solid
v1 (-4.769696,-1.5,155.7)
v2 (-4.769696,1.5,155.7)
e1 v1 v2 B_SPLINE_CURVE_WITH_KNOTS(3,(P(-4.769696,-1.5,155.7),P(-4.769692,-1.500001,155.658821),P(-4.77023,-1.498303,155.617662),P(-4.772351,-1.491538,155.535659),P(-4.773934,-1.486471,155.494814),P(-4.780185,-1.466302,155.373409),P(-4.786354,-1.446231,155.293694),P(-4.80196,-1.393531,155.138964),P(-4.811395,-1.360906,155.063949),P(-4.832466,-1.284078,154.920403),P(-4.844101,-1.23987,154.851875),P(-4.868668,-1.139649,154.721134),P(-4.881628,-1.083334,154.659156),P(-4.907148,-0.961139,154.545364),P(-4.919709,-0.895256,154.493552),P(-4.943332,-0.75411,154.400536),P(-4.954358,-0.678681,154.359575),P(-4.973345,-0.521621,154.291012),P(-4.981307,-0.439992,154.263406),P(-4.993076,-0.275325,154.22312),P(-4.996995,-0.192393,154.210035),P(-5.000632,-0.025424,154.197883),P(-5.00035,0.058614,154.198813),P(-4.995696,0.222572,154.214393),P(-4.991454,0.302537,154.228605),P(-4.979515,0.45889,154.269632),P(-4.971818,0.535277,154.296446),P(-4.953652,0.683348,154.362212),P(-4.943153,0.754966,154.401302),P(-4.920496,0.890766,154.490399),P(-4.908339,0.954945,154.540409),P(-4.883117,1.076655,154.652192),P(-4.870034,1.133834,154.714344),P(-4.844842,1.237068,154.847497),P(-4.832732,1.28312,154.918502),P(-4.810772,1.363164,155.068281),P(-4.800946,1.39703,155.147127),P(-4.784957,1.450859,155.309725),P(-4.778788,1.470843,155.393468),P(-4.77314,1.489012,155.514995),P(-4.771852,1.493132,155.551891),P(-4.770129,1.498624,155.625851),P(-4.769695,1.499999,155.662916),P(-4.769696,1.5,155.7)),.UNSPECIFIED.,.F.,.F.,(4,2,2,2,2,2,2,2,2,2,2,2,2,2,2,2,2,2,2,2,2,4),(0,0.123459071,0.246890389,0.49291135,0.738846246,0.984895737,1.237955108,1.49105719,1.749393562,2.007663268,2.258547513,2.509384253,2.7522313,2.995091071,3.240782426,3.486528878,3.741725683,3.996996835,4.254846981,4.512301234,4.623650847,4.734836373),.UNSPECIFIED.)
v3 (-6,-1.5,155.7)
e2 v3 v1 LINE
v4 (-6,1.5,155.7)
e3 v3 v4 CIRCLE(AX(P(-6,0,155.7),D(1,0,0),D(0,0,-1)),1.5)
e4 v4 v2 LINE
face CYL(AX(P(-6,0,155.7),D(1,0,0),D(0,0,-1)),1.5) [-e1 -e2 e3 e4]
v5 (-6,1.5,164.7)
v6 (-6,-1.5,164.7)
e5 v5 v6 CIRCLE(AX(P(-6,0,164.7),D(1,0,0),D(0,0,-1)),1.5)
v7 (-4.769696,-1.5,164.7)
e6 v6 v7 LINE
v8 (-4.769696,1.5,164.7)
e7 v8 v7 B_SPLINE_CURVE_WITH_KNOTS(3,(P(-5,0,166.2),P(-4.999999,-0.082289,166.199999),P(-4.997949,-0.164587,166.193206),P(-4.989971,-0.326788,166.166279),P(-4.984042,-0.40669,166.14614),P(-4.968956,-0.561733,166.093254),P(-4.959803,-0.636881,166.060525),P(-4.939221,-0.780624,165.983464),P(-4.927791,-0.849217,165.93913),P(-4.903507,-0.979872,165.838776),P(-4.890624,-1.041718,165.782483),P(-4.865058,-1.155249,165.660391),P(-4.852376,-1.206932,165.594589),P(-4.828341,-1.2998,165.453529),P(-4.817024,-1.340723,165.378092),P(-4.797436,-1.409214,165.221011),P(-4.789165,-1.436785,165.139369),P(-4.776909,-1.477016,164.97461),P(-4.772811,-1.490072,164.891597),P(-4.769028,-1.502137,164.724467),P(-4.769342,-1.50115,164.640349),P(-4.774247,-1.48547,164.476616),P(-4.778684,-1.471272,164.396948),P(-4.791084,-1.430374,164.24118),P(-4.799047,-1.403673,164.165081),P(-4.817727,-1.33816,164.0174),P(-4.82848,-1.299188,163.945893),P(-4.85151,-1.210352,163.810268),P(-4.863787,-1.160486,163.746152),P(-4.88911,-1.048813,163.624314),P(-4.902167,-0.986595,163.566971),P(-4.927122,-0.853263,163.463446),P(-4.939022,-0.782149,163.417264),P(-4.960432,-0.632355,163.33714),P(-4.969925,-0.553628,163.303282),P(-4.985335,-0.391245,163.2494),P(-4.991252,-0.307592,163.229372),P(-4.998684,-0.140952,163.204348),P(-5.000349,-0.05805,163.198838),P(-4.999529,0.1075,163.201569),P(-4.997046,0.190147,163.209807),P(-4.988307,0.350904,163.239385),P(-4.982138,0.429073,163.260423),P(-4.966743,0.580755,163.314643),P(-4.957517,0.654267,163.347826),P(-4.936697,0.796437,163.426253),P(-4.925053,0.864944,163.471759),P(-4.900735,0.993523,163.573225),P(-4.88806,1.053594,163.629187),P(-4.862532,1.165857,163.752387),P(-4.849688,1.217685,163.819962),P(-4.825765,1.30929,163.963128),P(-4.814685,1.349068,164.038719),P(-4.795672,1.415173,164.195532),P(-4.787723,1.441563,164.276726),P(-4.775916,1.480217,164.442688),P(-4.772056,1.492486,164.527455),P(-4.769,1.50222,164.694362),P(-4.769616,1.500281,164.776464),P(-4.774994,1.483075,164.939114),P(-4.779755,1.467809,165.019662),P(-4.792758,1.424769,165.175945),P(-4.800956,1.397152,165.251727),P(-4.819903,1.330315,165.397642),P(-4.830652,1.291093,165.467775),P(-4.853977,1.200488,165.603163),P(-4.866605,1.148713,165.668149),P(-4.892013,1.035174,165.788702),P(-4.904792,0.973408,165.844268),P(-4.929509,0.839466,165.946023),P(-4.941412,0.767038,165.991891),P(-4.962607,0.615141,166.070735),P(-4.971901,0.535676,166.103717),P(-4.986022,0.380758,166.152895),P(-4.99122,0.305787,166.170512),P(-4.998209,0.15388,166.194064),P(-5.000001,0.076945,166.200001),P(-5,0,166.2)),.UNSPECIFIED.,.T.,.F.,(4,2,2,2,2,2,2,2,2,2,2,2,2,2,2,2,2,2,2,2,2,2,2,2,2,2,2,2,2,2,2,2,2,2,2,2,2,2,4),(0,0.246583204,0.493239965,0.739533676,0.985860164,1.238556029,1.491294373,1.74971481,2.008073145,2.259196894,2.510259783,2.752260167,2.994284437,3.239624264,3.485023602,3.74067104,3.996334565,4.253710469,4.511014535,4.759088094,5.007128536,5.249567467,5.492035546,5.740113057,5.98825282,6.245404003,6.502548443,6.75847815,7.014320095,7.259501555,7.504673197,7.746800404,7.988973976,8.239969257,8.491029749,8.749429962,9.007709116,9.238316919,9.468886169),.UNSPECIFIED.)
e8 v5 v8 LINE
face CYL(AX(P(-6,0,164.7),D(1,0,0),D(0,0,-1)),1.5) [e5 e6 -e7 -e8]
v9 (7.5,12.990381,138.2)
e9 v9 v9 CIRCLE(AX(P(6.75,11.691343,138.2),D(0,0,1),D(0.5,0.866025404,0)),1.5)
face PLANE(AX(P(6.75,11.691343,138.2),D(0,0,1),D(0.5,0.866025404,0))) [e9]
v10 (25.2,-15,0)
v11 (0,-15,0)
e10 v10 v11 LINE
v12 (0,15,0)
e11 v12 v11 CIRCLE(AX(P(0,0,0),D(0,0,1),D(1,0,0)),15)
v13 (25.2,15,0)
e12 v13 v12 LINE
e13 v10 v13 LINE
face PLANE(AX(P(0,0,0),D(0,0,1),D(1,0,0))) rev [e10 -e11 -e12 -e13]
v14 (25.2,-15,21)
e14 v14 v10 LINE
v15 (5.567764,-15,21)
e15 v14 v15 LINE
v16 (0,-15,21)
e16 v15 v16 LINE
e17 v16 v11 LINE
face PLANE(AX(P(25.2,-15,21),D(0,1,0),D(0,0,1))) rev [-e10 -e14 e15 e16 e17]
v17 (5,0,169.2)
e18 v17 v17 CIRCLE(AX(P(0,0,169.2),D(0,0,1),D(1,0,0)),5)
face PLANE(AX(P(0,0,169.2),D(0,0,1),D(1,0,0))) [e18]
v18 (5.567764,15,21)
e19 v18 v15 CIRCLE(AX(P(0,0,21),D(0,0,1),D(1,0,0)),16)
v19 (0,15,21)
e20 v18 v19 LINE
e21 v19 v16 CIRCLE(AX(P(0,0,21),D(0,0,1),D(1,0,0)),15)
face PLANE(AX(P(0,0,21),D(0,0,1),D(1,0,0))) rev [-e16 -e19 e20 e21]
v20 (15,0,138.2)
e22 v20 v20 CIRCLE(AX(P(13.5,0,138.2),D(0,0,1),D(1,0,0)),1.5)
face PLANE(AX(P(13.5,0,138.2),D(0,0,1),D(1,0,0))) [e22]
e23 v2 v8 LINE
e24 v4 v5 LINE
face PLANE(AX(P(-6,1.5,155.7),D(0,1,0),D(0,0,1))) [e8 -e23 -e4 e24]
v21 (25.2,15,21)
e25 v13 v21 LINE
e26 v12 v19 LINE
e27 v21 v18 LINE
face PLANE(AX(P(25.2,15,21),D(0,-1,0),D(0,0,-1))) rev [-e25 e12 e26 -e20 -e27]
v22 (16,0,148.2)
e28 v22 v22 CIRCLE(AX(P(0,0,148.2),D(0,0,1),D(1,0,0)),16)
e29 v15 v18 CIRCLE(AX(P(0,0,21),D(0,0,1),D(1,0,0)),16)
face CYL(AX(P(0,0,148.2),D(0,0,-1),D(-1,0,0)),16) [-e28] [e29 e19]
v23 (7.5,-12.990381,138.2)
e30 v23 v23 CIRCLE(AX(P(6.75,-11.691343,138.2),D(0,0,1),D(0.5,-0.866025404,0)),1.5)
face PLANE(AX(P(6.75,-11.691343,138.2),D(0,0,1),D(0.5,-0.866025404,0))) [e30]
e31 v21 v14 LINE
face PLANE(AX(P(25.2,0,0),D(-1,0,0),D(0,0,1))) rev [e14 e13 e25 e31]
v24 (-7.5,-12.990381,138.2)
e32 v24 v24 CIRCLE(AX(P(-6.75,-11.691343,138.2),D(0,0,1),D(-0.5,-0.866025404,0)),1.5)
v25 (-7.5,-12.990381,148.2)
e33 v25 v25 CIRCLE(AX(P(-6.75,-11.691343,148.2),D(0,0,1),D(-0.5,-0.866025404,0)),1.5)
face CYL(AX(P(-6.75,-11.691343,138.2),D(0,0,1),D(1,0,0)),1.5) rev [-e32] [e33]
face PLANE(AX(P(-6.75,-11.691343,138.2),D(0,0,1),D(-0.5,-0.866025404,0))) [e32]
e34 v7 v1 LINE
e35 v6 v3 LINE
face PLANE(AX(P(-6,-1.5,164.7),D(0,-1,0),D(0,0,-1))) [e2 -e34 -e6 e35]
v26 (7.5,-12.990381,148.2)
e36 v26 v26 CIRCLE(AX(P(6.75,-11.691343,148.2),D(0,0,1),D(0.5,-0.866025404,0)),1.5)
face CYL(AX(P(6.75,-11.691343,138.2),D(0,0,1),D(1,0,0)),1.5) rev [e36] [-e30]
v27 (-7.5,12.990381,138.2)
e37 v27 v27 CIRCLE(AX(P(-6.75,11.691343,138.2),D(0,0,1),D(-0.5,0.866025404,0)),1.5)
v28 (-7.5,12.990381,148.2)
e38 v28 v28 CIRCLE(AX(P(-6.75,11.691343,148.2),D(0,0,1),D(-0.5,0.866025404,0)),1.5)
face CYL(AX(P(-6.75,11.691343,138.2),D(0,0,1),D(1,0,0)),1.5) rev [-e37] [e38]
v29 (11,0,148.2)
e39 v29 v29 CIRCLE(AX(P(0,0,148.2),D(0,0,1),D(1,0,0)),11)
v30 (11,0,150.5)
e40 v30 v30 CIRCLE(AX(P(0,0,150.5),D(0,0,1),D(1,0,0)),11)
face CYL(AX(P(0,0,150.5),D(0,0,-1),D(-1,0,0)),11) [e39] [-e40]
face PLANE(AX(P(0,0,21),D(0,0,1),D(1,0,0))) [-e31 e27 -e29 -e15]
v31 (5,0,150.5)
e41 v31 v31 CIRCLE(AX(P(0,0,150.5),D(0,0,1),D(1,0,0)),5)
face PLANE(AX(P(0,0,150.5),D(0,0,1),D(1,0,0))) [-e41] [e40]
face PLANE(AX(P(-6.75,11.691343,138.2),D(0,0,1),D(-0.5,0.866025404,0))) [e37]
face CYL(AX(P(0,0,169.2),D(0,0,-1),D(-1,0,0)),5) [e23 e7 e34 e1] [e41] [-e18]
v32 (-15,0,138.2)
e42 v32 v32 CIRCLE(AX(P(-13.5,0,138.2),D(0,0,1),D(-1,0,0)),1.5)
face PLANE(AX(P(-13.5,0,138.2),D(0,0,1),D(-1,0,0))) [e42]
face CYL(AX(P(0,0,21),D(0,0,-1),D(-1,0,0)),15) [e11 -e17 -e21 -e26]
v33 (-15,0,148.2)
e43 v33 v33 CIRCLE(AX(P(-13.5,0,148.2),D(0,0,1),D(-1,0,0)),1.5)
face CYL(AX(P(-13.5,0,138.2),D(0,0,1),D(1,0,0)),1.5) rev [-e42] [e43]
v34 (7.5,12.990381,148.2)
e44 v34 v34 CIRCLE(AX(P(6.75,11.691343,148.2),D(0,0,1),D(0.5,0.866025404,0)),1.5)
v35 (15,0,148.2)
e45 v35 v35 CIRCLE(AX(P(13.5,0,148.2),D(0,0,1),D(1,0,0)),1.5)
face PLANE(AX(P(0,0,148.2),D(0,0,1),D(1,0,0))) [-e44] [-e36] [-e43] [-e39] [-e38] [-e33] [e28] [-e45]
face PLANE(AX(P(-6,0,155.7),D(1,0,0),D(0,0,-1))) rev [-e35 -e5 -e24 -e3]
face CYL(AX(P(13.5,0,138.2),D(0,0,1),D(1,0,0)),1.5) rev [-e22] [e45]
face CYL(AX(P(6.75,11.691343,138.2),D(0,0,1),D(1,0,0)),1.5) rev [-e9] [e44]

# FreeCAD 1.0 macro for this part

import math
import FreeCAD as App
import Part
import Sketcher

doc = App.newDocument("Part")
body = doc.addObject("PartDesign::Body", "Body")

# Sketch on XY plane
sketch1 = body.newObject("Sketcher::SketchObject", "Sketch")
sketch1.AttachmentSupport = (doc.getObject("XY_Plane"), [""])
sketch1.MapMode = "FlatFace"
sketch1.addGeometry(Part.Circle(App.Vector(0, 0, 0), App.Vector(0, 0, 1), 15), False)
sketch1.addConstraint(Sketcher.Constraint("Coincident", 0, 3, -1, 1))
sketch1.addConstraint(Sketcher.Constraint("Diameter", 0, 30.0))
pad1 = body.newObject("PartDesign::Pad", "Pad")
pad1.Profile = sketch1
pad1.Length = 21

# Sketch on YZ plane
sketch2 = body.newObject("Sketcher::SketchObject", "Sketch001")
sketch2.AttachmentSupport = (doc.getObject("YZ_Plane"), [""])
sketch2.MapMode = "FlatFace"
sketch2.addGeometry(Part.LineSegment(App.Vector(15, 21, 0), App.Vector(-15, 21, 0)), False)
sketch2.addGeometry(Part.LineSegment(App.Vector(-15, 21, 0), App.Vector(-15, 0, 0)), False)
sketch2.addGeometry(Part.LineSegment(App.Vector(-15, 0, 0), App.Vector(15, 0, 0)), False)
sketch2.addGeometry(Part.LineSegment(App.Vector(15, 0, 0), App.Vector(15, 21, 0)), False)
sketch2.addConstraint(Sketcher.Constraint("Coincident", 0, 2, 1, 1))
sketch2.addConstraint(Sketcher.Constraint("Coincident", 1, 2, 2, 1))
sketch2.addConstraint(Sketcher.Constraint("Coincident", 2, 2, 3, 1))
sketch2.addConstraint(Sketcher.Constraint("Coincident", 3, 2, 0, 1))
sketch2.addConstraint(Sketcher.Constraint("Horizontal", 0))
sketch2.addConstraint(Sketcher.Constraint("Vertical", 1))
sketch2.addConstraint(Sketcher.Constraint("Horizontal", 2))
sketch2.addConstraint(Sketcher.Constraint("Vertical", 3))
sketch2.addConstraint(Sketcher.Constraint("Symmetric", 1, 2, 2, 2, -1, 1))
sketch2.addConstraint(Sketcher.Constraint("DistanceX", 0, 2, 0, 1, 30.0))
sketch2.addConstraint(Sketcher.Constraint("DistanceY", 1, 2, 1, 1, 21.0))
pad2 = body.newObject("PartDesign::Pad", "Pad001")
pad2.Profile = sketch2
pad2.Length = 25.2

# Sketch on XY plane
sketch3 = body.newObject("Sketcher::SketchObject", "Sketch002")
sketch3.AttachmentSupport = (doc.getObject("XY_Plane"), [""])
sketch3.MapMode = "FlatFace"
sketch3.AttachmentOffset = App.Placement(App.Vector(0, 0, 21), App.Rotation())
sketch3.addGeometry(Part.Circle(App.Vector(0, 0, 0), App.Vector(0, 0, 1), 16), False)
sketch3.addConstraint(Sketcher.Constraint("Coincident", 0, 3, -1, 1))
sketch3.addConstraint(Sketcher.Constraint("Diameter", 0, 32.0))
pad3 = body.newObject("PartDesign::Pad", "Pad002")
pad3.Profile = sketch3
pad3.Length = 127.2

# Sketch on XY plane
sketch4 = body.newObject("Sketcher::SketchObject", "Sketch003")
sketch4.AttachmentSupport = (doc.getObject("XY_Plane"), [""])
sketch4.MapMode = "FlatFace"
sketch4.AttachmentOffset = App.Placement(App.Vector(0, 0, 148.2), App.Rotation())
sketch4.addGeometry(Part.Circle(App.Vector(0, 0, 0), App.Vector(0, 0, 1), 11), False)
sketch4.addConstraint(Sketcher.Constraint("Coincident", 0, 3, -1, 1))
sketch4.addConstraint(Sketcher.Constraint("Diameter", 0, 22.0))
pad4 = body.newObject("PartDesign::Pad", "Pad003")
pad4.Profile = sketch4
pad4.Length = 2.3

# Sketch on XY plane
sketch5 = body.newObject("Sketcher::SketchObject", "Sketch004")
sketch5.AttachmentSupport = (doc.getObject("XY_Plane"), [""])
sketch5.MapMode = "FlatFace"
sketch5.AttachmentOffset = App.Placement(App.Vector(0, 0, 150.5), App.Rotation())
sketch5.addGeometry(Part.Circle(App.Vector(0, 0, 0), App.Vector(0, 0, 1), 5), False)
sketch5.addConstraint(Sketcher.Constraint("Coincident", 0, 3, -1, 1))
sketch5.addConstraint(Sketcher.Constraint("Diameter", 0, 10.0))
pad5 = body.newObject("PartDesign::Pad", "Pad004")
pad5.Profile = sketch5
pad5.Length = 18.7

# Sketch on YZ plane
sketch6 = body.newObject("Sketcher::SketchObject", "Sketch005")
sketch6.AttachmentSupport = (doc.getObject("YZ_Plane"), [""])
sketch6.MapMode = "FlatFace"
sketch6.addGeometry(Part.LineSegment(App.Vector(1.5, 155.7, 0), App.Vector(1.5, 164.7, 0)), False)
sketch6.addGeometry(Part.ArcOfCircle(Part.Circle(App.Vector(0, 164.7, 0), App.Vector(0, 0, 1), 1.5), math.radians(0), math.radians(180)), False)
sketch6.addGeometry(Part.LineSegment(App.Vector(-1.5, 164.7, 0), App.Vector(-1.5, 155.7, 0)), False)
sketch6.addGeometry(Part.ArcOfCircle(Part.Circle(App.Vector(0, 155.7, 0), App.Vector(0, 0, 1), 1.5), math.radians(180), math.radians(360)), False)
sketch6.addConstraint(Sketcher.Constraint("Tangent", 0, 2, 1, 1))
sketch6.addConstraint(Sketcher.Constraint("Tangent", 1, 2, 2, 1))
sketch6.addConstraint(Sketcher.Constraint("Tangent", 2, 2, 3, 1))
sketch6.addConstraint(Sketcher.Constraint("Tangent", 3, 2, 0, 1))
sketch6.addConstraint(Sketcher.Constraint("Vertical", 0))
sketch6.addConstraint(Sketcher.Constraint("Vertical", 2))
sketch6.addConstraint(Sketcher.Constraint("PointOnObject", 1, 3, -2))
sketch6.addConstraint(Sketcher.Constraint("Radius", 1, 1.5))
sketch6.addConstraint(Sketcher.Constraint("DistanceY", 0, 1, 0, 2, 9.0))
sketch6.addConstraint(Sketcher.Constraint("DistanceY", -1, 1, 1, 3, 164.7))
pad6 = body.newObject("PartDesign::Pad", "Pad005")
pad6.Profile = sketch6
pad6.Length = 6
pad6.Reversed = True

# Sketch on XY plane
sketch7 = body.newObject("Sketcher::SketchObject", "Sketch006")
sketch7.AttachmentSupport = (doc.getObject("XY_Plane"), [""])
sketch7.MapMode = "FlatFace"
sketch7.AttachmentOffset = App.Placement(App.Vector(0, 0, 148.2), App.Rotation())
sketch7.addGeometry(Part.Circle(App.Vector(13.5, 0, 0), App.Vector(0, 0, 1), 1.5), False)
sketch7.addConstraint(Sketcher.Constraint("PointOnObject", 0, 3, -1))
sketch7.addConstraint(Sketcher.Constraint("Diameter", 0, 3.0))
sketch7.addConstraint(Sketcher.Constraint("DistanceX", -1, 1, 0, 3, 13.5))
pocket1 = body.newObject("PartDesign::Pocket", "Pocket")
pocket1.Profile = sketch7
pocket1.Length = 10
doc.recompute()

polarpattern = body.newObject("PartDesign::PolarPattern", "PolarPattern")
polarpattern.Originals = [pocket1]
polarpattern.Axis = (doc.getObject("Z_Axis"), [""])
polarpattern.Angle = 360
polarpattern.Occurrences = 6
body.Tip = polarpattern

doc.recompute()
